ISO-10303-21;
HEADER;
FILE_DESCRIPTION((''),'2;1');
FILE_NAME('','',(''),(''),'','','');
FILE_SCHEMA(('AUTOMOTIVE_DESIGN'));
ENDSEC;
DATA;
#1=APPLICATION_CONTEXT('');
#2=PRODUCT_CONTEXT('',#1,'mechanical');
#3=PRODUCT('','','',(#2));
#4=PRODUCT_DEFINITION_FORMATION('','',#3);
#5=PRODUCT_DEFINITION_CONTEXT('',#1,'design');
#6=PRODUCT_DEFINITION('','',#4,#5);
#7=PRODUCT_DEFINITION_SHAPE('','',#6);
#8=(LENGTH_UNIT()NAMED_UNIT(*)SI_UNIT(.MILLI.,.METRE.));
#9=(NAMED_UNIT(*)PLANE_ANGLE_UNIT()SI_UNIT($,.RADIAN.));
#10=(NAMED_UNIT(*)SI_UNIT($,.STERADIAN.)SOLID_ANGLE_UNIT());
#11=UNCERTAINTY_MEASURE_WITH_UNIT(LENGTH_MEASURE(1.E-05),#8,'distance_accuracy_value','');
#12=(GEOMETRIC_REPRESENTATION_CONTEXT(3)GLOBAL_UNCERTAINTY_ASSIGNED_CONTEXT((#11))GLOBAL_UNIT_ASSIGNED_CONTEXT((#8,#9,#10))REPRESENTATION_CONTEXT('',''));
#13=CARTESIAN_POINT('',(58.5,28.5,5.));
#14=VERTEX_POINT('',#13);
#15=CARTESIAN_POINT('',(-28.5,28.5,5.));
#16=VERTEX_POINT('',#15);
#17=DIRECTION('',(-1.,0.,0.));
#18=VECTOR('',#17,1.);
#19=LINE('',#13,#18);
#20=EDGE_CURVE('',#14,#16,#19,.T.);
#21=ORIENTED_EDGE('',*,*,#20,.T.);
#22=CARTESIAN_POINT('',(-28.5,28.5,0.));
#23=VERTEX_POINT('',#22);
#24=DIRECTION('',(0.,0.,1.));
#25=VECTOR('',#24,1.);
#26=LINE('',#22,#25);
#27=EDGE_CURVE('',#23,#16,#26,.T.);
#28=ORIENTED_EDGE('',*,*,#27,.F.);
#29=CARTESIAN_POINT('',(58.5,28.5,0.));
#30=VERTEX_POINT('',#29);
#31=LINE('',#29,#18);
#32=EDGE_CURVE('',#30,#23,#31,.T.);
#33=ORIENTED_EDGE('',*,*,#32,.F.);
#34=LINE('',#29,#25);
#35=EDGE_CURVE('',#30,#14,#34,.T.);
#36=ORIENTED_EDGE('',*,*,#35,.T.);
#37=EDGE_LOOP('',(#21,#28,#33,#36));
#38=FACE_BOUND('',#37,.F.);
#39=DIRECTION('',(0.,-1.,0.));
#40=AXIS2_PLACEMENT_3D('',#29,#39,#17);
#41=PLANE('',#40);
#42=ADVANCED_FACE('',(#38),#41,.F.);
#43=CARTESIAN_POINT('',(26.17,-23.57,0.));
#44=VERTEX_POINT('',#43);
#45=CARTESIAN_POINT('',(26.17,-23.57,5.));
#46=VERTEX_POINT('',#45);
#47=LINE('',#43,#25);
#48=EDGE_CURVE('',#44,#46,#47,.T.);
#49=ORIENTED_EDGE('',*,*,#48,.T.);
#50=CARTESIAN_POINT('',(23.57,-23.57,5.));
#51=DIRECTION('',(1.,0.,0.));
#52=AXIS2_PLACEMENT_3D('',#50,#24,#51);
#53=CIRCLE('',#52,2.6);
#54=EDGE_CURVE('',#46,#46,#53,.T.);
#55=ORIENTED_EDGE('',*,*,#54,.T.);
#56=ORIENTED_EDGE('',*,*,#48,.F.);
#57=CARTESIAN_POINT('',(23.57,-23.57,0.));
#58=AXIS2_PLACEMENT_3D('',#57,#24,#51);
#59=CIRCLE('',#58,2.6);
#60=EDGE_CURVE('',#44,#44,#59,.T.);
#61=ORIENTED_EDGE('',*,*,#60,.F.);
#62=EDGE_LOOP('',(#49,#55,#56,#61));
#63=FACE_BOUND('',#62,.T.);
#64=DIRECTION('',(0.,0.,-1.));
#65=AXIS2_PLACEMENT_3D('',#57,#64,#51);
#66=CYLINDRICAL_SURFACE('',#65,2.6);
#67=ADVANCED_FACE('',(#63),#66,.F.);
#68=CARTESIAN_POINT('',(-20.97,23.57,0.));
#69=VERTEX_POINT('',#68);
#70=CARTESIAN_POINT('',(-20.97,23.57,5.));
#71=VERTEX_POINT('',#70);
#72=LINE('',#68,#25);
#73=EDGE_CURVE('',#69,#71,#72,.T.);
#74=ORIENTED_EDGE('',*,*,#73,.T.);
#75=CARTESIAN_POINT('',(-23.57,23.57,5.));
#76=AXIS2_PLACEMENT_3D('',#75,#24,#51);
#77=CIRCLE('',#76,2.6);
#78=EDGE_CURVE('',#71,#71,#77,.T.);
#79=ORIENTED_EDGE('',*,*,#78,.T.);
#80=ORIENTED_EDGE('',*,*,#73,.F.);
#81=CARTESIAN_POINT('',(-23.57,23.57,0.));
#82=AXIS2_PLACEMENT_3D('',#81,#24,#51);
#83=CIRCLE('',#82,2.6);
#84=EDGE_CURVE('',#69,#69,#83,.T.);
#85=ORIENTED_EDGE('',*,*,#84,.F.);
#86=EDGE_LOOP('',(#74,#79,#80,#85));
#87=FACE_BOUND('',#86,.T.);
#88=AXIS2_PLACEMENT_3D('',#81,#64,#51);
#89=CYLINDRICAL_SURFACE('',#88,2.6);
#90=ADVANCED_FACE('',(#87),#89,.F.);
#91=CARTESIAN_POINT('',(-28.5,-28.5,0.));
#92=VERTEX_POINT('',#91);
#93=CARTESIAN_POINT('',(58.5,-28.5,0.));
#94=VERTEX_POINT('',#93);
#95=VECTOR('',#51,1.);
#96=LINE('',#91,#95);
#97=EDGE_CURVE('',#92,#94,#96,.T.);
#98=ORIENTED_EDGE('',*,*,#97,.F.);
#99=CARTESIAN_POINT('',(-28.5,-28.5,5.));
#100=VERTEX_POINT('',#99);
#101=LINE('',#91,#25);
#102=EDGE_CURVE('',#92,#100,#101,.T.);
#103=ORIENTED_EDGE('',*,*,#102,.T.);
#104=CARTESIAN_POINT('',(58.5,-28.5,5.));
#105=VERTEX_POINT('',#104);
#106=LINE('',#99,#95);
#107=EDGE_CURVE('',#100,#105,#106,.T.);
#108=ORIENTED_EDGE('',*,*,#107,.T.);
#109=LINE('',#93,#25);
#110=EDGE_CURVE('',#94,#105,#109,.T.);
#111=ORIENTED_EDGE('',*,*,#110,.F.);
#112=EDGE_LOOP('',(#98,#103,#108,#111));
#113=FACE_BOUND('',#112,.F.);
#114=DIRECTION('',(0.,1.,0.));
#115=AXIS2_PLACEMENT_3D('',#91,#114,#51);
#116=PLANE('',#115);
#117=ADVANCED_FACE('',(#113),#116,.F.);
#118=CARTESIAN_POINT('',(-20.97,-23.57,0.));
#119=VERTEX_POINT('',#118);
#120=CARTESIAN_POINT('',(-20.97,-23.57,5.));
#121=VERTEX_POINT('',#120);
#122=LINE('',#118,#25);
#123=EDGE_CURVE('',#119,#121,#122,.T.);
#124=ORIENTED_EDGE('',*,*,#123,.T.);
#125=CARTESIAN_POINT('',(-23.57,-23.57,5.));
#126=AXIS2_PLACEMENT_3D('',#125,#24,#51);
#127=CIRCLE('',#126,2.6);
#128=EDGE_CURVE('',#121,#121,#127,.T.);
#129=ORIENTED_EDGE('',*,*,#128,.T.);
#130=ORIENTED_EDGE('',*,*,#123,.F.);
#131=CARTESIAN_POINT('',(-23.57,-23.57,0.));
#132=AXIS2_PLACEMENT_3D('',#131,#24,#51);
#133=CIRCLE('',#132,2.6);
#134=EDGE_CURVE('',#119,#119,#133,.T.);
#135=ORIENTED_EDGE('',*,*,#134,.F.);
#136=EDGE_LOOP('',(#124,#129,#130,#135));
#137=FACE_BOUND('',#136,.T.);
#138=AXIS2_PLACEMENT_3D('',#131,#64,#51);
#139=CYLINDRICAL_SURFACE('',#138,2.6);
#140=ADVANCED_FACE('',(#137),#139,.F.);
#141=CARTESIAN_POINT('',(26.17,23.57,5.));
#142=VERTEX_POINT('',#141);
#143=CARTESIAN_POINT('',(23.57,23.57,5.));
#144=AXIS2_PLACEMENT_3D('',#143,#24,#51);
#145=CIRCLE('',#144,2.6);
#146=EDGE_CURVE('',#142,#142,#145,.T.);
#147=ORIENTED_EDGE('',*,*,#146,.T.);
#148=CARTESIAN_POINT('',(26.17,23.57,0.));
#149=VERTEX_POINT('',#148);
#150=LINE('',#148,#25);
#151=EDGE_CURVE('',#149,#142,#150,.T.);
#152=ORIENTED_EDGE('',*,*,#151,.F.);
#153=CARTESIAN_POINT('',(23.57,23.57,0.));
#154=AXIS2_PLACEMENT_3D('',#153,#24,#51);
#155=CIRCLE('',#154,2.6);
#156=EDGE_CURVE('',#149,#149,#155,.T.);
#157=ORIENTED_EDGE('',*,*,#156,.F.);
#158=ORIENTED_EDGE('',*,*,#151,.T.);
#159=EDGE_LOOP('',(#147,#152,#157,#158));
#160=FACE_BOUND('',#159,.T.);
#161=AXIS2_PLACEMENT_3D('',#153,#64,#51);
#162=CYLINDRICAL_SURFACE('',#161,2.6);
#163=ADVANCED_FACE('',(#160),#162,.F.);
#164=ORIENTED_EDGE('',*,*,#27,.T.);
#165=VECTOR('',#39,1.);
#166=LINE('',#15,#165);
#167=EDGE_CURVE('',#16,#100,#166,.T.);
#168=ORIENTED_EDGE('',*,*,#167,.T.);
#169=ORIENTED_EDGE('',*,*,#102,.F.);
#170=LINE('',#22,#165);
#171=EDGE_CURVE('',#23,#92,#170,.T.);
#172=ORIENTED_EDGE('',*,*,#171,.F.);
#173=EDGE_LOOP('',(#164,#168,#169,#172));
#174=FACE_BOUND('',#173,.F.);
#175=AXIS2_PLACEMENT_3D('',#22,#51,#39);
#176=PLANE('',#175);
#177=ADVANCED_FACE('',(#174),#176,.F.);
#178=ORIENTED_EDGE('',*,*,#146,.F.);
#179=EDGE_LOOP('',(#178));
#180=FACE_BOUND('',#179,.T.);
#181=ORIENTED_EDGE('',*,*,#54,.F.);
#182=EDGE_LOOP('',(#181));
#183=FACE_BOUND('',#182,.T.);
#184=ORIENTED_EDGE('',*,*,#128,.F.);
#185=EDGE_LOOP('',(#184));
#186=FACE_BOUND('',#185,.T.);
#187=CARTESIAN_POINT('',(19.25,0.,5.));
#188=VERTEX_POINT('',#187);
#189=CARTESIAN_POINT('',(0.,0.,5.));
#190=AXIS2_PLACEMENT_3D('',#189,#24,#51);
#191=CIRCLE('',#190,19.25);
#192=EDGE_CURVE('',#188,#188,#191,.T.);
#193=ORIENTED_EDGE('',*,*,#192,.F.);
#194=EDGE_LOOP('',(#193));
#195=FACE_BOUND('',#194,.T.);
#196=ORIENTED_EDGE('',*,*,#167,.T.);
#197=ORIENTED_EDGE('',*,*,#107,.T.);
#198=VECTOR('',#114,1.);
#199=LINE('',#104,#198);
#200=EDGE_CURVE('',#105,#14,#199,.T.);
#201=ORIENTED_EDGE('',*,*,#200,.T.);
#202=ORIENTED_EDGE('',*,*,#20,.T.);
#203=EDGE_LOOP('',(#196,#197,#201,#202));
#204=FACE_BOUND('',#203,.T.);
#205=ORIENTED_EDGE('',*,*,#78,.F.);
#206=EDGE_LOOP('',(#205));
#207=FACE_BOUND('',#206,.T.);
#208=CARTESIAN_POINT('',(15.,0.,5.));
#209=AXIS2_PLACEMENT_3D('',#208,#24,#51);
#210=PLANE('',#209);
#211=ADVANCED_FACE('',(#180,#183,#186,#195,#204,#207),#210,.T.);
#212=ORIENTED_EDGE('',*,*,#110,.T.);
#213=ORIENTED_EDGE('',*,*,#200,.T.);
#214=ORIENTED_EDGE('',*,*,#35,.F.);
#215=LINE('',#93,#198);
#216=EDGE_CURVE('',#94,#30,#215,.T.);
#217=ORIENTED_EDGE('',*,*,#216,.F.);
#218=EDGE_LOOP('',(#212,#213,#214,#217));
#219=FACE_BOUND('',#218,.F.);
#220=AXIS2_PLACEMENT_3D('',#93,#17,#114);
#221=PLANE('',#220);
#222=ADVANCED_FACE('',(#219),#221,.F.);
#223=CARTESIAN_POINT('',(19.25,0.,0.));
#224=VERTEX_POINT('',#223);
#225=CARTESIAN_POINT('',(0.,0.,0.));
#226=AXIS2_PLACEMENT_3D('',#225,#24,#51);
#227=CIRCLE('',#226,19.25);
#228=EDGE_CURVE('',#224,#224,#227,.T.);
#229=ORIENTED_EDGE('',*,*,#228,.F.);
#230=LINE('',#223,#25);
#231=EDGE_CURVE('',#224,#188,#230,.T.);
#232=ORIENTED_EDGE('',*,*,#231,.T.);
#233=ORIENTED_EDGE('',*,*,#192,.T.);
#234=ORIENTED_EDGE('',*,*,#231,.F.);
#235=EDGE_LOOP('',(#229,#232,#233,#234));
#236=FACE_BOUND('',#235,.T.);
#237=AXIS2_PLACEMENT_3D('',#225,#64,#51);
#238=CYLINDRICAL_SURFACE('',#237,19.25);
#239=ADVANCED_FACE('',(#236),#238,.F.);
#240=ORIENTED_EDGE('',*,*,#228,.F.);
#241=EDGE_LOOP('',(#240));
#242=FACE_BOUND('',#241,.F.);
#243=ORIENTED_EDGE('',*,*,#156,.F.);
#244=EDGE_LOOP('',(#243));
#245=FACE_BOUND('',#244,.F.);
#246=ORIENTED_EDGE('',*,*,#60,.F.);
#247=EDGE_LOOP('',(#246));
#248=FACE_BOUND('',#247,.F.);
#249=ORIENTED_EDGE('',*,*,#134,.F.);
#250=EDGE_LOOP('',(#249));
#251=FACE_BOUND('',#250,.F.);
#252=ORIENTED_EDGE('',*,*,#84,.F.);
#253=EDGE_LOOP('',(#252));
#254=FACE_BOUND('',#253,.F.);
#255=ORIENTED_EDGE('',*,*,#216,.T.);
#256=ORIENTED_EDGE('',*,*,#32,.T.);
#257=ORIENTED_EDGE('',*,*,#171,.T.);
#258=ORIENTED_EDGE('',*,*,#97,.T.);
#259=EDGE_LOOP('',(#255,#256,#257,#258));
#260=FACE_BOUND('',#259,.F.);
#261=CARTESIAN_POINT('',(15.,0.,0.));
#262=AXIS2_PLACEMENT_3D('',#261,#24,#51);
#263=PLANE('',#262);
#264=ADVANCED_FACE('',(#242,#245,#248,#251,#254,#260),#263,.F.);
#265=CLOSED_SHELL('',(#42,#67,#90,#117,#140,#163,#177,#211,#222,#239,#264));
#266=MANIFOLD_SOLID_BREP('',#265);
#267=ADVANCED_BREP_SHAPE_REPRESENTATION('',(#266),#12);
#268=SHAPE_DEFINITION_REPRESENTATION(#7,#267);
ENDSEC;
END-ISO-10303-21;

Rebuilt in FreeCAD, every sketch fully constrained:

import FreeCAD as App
import Part
import Sketcher
from FreeCAD import Vector


def add_polygon(sketch, points):
    """Adds a closed chain of lines whose ends are joined by coincident constraints."""
    first, n = sketch.GeometryCount, len(points)
    for a, b in zip(points, points[1:] + points[:1]):
        sketch.addGeometry(Part.LineSegment(App.Vector(*a, 0), App.Vector(*b, 0)), False)
    for i in range(n):
        sketch.addConstraint(Sketcher.Constraint("Coincident", first + i, 2, first + (i + 1) % n, 1))

doc = App.newDocument("Part")
body = doc.addObject("PartDesign::Body", "Body")

# Sketch on XY plane
sketch1 = body.newObject("Sketcher::SketchObject", "Sketch")
sketch1.AttachmentSupport = (doc.getObject("XY_Plane"), [""])
sketch1.MapMode = "FlatFace"
add_polygon(sketch1, [(-28.5, -28.5), (58.5, -28.5), (58.5, 28.5), (-28.5, 28.5)])  # lines 0-3
sketch1.addGeometry(Part.Circle(Vector(-23.6, -23.6, 0), Vector(0, 0, 1), 2.6), False)  # 4
sketch1.addGeometry(Part.Circle(Vector(0, 0, 0), Vector(0, 0, 1), 19.2), False)  # 5
sketch1.addGeometry(Part.Circle(Vector(23.6, -23.6, 0), Vector(0, 0, 1), 2.6), False)  # 6
sketch1.addGeometry(Part.Circle(Vector(-23.6, 23.6, 0), Vector(0, 0, 1), 2.6), False)  # 7
sketch1.addGeometry(Part.Circle(Vector(23.6, 23.6, 0), Vector(0, 0, 1), 2.6), False)  # 8
sketch1.addConstraint(Sketcher.Constraint("Horizontal", 0))
sketch1.addConstraint(Sketcher.Constraint("Vertical", 1))
sketch1.addConstraint(Sketcher.Constraint("Horizontal", 2))
sketch1.addConstraint(Sketcher.Constraint("Vertical", 3))
sketch1.addConstraint(Sketcher.Constraint("Coincident", 5, 3, -1, 1))
sketch1.addConstraint(Sketcher.Constraint("Equal", 4, 6))
sketch1.addConstraint(Sketcher.Constraint("Equal", 6, 7))
sketch1.addConstraint(Sketcher.Constraint("Equal", 7, 8))
sketch1.addConstraint(Sketcher.Constraint("Symmetric", 6, 3, 7, 3, -1, 1))
sketch1.addConstraint(Sketcher.Constraint("Symmetric", 4, 3, 8, 3, -1, 1))
sketch1.addConstraint(Sketcher.Constraint("Symmetric", 4, 3, 6, 3, -2))
sketch1.addConstraint(Sketcher.Constraint("Diameter", 4, 5.2))
sketch1.addConstraint(Sketcher.Constraint("Diameter", 5, 38.5))
sketch1.addConstraint(Sketcher.Constraint("DistanceX", 0, 1, 0, 2, 87.0))
sketch1.addConstraint(Sketcher.Constraint("DistanceY", 1, 1, 1, 2, 57.0))
sketch1.addConstraint(Sketcher.Constraint("DistanceX", -1, 1, 0, 2, 58.5))
sketch1.addConstraint(Sketcher.Constraint("DistanceY", 0, 2, -1, 1, 28.5))
sketch1.addConstraint(Sketcher.Constraint("DistanceX", 4, 3, -1, 1, 23.57))
sketch1.addConstraint(Sketcher.Constraint("DistanceY", 4, 3, -1, 1, 23.57))
pad1 = body.newObject("PartDesign::Pad", "Pad")
pad1.Profile = sketch1
pad1.Length = 5

doc.recompute()
